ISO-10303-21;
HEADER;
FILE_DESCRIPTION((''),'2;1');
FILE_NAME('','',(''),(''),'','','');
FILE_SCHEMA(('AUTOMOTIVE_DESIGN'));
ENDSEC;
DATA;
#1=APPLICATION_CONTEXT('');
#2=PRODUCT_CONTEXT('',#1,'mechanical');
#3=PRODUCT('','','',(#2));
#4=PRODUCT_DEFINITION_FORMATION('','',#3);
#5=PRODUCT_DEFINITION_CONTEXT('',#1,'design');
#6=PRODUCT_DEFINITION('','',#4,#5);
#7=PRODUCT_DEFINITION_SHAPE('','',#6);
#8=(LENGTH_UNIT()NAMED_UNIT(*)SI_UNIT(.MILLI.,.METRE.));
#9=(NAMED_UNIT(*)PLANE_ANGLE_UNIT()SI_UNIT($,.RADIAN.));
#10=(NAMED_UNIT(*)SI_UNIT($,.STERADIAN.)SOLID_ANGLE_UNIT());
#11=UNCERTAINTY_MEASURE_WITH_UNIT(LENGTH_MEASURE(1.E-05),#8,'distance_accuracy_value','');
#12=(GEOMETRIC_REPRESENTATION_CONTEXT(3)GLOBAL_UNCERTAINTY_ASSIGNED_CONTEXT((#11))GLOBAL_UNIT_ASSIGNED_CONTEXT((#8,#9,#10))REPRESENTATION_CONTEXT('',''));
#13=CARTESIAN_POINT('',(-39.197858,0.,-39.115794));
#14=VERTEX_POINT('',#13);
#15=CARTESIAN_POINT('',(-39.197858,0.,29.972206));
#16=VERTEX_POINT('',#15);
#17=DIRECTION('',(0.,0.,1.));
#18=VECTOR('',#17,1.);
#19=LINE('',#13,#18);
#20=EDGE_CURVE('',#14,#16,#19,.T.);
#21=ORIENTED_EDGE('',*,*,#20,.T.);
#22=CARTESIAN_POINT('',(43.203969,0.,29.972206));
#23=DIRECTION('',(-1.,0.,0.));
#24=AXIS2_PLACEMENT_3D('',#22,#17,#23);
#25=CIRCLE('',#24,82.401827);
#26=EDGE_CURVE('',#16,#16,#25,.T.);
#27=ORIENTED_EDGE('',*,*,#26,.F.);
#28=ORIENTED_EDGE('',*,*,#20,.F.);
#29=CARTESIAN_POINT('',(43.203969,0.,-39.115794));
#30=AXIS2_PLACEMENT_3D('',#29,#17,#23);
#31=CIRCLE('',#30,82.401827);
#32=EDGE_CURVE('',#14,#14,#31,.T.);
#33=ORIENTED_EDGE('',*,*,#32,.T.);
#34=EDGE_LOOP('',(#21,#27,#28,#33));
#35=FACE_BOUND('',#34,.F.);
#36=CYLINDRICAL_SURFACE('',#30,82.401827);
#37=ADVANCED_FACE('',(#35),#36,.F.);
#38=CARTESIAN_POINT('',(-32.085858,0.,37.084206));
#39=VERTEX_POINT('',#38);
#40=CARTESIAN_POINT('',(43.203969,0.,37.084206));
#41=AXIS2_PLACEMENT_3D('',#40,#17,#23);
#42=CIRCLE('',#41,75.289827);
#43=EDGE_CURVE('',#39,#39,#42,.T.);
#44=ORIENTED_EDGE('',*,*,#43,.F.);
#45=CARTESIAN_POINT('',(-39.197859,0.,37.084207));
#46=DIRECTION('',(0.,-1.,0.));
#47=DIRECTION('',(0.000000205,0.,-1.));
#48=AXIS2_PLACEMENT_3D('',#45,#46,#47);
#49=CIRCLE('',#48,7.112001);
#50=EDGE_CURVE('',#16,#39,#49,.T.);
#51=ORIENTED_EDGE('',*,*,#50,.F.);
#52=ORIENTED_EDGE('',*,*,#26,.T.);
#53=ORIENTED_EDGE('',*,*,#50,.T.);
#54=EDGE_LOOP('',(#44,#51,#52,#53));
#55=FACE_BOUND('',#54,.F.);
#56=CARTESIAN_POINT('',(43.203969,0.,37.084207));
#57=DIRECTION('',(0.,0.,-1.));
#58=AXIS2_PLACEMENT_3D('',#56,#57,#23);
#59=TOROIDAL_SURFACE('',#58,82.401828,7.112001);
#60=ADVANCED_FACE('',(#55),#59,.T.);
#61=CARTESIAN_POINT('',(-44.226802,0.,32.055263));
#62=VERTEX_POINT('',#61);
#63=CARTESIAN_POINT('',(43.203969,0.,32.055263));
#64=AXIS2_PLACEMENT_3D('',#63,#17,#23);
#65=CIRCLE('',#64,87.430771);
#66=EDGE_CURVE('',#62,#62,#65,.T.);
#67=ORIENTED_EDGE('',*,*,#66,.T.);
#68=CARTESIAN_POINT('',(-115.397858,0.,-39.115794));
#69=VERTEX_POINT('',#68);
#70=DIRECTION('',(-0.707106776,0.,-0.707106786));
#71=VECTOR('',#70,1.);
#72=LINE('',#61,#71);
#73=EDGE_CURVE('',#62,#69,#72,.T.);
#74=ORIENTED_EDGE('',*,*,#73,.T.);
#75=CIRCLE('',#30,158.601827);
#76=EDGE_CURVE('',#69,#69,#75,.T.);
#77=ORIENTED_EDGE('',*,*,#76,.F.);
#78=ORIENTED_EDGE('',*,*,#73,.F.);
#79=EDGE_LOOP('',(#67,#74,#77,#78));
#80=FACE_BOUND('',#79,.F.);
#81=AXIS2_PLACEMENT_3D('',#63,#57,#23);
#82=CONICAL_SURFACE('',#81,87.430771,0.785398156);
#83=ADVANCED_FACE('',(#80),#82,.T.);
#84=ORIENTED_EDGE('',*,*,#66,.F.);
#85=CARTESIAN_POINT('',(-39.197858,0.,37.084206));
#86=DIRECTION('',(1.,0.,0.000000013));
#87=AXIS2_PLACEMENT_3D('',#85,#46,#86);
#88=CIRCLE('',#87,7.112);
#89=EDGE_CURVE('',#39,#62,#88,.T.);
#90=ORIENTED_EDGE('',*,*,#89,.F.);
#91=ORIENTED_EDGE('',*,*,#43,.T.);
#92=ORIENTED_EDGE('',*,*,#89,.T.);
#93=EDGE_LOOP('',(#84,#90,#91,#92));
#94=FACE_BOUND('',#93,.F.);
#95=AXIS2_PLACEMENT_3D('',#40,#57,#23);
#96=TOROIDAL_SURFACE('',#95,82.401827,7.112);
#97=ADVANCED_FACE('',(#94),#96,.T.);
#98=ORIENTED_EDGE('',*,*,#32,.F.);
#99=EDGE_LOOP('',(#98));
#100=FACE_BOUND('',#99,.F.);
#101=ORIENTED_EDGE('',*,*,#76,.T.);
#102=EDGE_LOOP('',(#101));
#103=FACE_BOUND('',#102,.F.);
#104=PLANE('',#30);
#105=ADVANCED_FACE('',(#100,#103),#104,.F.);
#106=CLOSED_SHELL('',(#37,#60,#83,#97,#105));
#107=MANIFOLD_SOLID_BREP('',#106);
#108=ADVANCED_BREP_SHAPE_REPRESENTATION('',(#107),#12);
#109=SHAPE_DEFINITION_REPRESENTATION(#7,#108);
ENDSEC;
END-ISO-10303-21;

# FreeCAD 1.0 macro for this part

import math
import FreeCAD as App
import Part
import Sketcher

V = App.Vector
Q = App.Units.Quantity

doc = App.newDocument("Part")
body = doc.addObject("PartDesign::Body", "Body")

# Sketch on XZ plane
sketch1 = doc.addObject("Sketcher::SketchObject", "Sketch")
body.addObject(sketch1)
sketch1.AttachmentSupport = (doc.XZ_Plane, [""])
sketch1.MapMode = "FlatFace"
sketch1.addGeometry([
    Part.ArcOfCircle(Part.Circle(V(-39, 37, 0), V(0, 0, 1), 7), math.radians(0), math.radians(225)),  # 0
    Part.LineSegment(V(-44, 32, 0), V(-115, -39, 0)),  # 1
    Part.LineSegment(V(-115, -39, 0), V(-39, -39, 0)),  # 2
    Part.LineSegment(V(-39, -39, 0), V(-39, 30, 0)),  # 3
    Part.ArcOfCircle(Part.Circle(V(-39, 37, 0), V(0, 0, 1), 7), math.radians(-90), math.radians(0)),  # 4
], False)
sketch1.addGeometry(Part.LineSegment(V(43, -39, 0), V(43, 37, 0)), True)  # axis
sketch1.addConstraint([
    Sketcher.Constraint("Coincident", 0, 2, 1, 1),
    Sketcher.Constraint("Coincident", 1, 2, 2, 1),
    Sketcher.Constraint("Coincident", 2, 2, 3, 1),
    Sketcher.Constraint("Coincident", 3, 2, 4, 1),
    Sketcher.Constraint("Tangent", 4, 2, 0, 1),
    Sketcher.Constraint("Horizontal", 2),
    Sketcher.Constraint("Vertical", 3),
    Sketcher.Constraint("Vertical", 5),
    Sketcher.Constraint("Equal", 0, 4),
    Sketcher.Constraint("Horizontal", 0, 3, 4, 2),
    Sketcher.Constraint("Horizontal", 2, 2, 5, 1),
    Sketcher.Constraint("Horizontal", 4, 2, 5, 2),
    Sketcher.Constraint("Vertical", 4, 3, 2, 2),
    Sketcher.Constraint("Equal", 2, 5),
    Sketcher.Constraint("DistanceX", 2, 1, 2, 2, Q("3 in")),
    Sketcher.Constraint("Radius", 0, Q("0.28 in")),
    Sketcher.Constraint("Angle", 1, Q("-135 deg")),
    Sketcher.Constraint("DistanceX", 0, 2, -1, 1, Q("44.226802 mm")),
    Sketcher.Constraint("DistanceX", -1, 1, 5, 1, Q("43.203969 mm")),
    Sketcher.Constraint("DistanceY", -1, 1, 0, 3, Q("37.084206 mm")),
])
revolution = doc.addObject("PartDesign::Revolution", "Revolution")
body.addObject(revolution)
revolution.Profile = sketch1
revolution.ReferenceAxis = (sketch1, ["Axis0"])
revolution.Angle = 360

doc.recompute()
